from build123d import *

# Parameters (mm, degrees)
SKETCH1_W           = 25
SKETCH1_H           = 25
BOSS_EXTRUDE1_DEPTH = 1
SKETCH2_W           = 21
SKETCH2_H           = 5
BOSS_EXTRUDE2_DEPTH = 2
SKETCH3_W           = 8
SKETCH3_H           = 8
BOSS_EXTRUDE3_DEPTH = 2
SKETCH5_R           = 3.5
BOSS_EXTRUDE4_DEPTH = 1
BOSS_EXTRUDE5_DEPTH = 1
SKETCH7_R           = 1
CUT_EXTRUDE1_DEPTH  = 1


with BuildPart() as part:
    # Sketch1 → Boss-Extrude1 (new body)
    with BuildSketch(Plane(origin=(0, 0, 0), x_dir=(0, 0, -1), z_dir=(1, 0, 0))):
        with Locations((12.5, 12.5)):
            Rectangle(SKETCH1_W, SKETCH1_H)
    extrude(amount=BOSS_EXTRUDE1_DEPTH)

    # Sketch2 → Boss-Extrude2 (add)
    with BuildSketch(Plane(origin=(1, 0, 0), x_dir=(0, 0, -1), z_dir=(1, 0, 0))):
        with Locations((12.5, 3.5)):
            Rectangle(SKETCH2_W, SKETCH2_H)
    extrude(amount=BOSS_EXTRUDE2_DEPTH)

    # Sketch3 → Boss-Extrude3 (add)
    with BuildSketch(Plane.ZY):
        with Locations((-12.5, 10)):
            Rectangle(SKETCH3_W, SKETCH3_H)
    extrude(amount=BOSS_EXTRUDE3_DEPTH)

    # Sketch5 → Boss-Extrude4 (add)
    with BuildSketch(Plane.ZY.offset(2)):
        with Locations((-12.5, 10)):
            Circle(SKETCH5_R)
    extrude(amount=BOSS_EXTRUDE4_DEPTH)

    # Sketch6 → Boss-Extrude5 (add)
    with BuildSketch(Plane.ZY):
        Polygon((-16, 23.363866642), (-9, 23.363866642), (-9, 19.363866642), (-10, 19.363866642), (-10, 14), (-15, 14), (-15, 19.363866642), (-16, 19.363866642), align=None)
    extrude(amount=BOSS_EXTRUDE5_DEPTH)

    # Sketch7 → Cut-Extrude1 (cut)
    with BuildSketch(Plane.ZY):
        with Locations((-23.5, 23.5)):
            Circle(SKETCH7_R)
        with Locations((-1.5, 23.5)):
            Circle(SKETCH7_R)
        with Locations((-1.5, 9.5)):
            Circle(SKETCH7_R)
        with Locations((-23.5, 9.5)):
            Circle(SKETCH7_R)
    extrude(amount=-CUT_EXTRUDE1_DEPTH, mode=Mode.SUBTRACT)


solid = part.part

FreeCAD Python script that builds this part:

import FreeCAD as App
import Part
import Sketcher


def add_polygon(sketch, points):
    """Adds a closed chain of lines whose ends are joined by coincident constraints."""
    first, n = sketch.GeometryCount, len(points)
    for a, b in zip(points, points[1:] + points[:1]):
        sketch.addGeometry(Part.LineSegment(App.Vector(*a, 0), App.Vector(*b, 0)), False)
    for i in range(n):
        sketch.addConstraint(Sketcher.Constraint("Coincident", first + i, 2, first + (i + 1) % n, 1))

doc = App.newDocument("Part")
body = doc.addObject("PartDesign::Body", "Body")

# Sketch on YZ plane
sketch1 = doc.addObject("Sketcher::SketchObject", "Sketch")
body.addObject(sketch1)
sketch1.AttachmentSupport = (doc.YZ_Plane, [""])
sketch1.MapMode = "FlatFace"
add_polygon(sketch1, [(25, 0), (0, 0), (0, -25), (25, -25)])  # lines 0-3
sketch1.addConstraint([
    Sketcher.Constraint("Horizontal", 0),
    Sketcher.Constraint("Vertical", 1),
    Sketcher.Constraint("Horizontal", 2),
    Sketcher.Constraint("Vertical", 3),
    Sketcher.Constraint("Coincident", 0, 2, -1, 1),
    Sketcher.Constraint("Equal", 2, 1),
    Sketcher.Constraint("DistanceX", 0, 2, 0, 1, 25.0),
])
pad1 = doc.addObject("PartDesign::Pad", "Pad")
body.addObject(pad1)
pad1.Profile = sketch1
pad1.Length = 1

# Sketch on YZ plane
sketch2 = doc.addObject("Sketcher::SketchObject", "Sketch001")
body.addObject(sketch2)
sketch2.AttachmentSupport = (doc.YZ_Plane, [""])
sketch2.MapMode = "FlatFace"
sketch2.AttachmentOffset = App.Placement(App.Vector(0, 0, 1), App.Rotation())
add_polygon(sketch2, [(6, -2), (1, -2), (1, -23), (6, -23)])  # lines 0-3
sketch2.addConstraint([
    Sketcher.Constraint("Horizontal", 0),
    Sketcher.Constraint("Vertical", 1),
    Sketcher.Constraint("Horizontal", 2),
    Sketcher.Constraint("Vertical", 3),
    Sketcher.Constraint("DistanceX", 0, 2, 0, 1, 5.0),
    Sketcher.Constraint("DistanceY", 1, 2, 1, 1, 21.0),
    Sketcher.Constraint("DistanceX", -1, 1, 0, 2, 1.0),
    Sketcher.Constraint("DistanceY", 0, 2, -1, 1, 2.0),
])
pad2 = doc.addObject("PartDesign::Pad", "Pad001")
body.addObject(pad2)
pad2.Profile = sketch2
pad2.Length = 2

# Sketch on YZ plane
sketch3 = doc.addObject("Sketcher::SketchObject", "Sketch002")
body.addObject(sketch3)
sketch3.AttachmentSupport = (doc.YZ_Plane, [""])
sketch3.MapMode = "FlatFace"
add_polygon(sketch3, [(14, -16), (6, -16), (6, -8), (14, -8)])  # lines 0-3
sketch3.addConstraint([
    Sketcher.Constraint("Horizontal", 0),
    Sketcher.Constraint("Vertical", 1),
    Sketcher.Constraint("Horizontal", 2),
    Sketcher.Constraint("Vertical", 3),
    Sketcher.Constraint("Equal", 2, 1),
    Sketcher.Constraint("DistanceX", 0, 2, 0, 1, 8.0),
    Sketcher.Constraint("DistanceX", -1, 1, 0, 2, 6.0),
    Sketcher.Constraint("DistanceY", 0, 2, -1, 1, 16.5),
])
pad3 = doc.addObject("PartDesign::Pad", "Pad002")
body.addObject(pad3)
pad3.Profile = sketch3
pad3.Length = 2
pad3.Reversed = True

# Sketch on YZ plane
sketch4 = doc.addObject("Sketcher::SketchObject", "Sketch003")
body.addObject(sketch4)
sketch4.AttachmentSupport = (doc.YZ_Plane, [""])
sketch4.MapMode = "FlatFace"
sketch4.AttachmentOffset = App.Placement(App.Vector(0, 0, -2), App.Rotation())
sketch4.addGeometry(Part.Circle(App.Vector(10, -12.5, 0), App.Vector(0, 0, 1), 3.5), False)
sketch4.addConstraint([
    Sketcher.Constraint("Diameter", 0, 7.0),
    Sketcher.Constraint("DistanceX", -1, 1, 0, 3, 10.0),
    Sketcher.Constraint("DistanceY", 0, 3, -1, 1, 12.5),
])
pad4 = doc.addObject("PartDesign::Pad", "Pad003")
body.addObject(pad4)
pad4.Profile = sketch4
pad4.Length = 1
pad4.Reversed = True

# Sketch on YZ plane
sketch5 = doc.addObject("Sketcher::SketchObject", "Sketch004")
body.addObject(sketch5)
sketch5.AttachmentSupport = (doc.YZ_Plane, [""])
sketch5.MapMode = "FlatFace"
add_polygon(sketch5, [(23.4, -9), (23.4, -16), (19.4, -16), (19.4, -15), (14, -15), (14, -10), (19.4, -10), (19.4, -9)])  # lines 0-7
sketch5.addConstraint([
    Sketcher.Constraint("Vertical", 0),
    Sketcher.Constraint("Horizontal", 1),
    Sketcher.Constraint("Vertical", 2),
    Sketcher.Constraint("Horizontal", 3),
    Sketcher.Constraint("Vertical", 4),
    Sketcher.Constraint("Horizontal", 5),
    Sketcher.Constraint("Vertical", 6),
    Sketcher.Constraint("Horizontal", 7),
    Sketcher.Constraint("Vertical", 2, 2, 5, 2),
    Sketcher.Constraint("Equal", 2, 6),
    Sketcher.Constraint("DistanceX", 1, 2, 1, 1, 4.0),
    Sketcher.Constraint("DistanceY", 0, 2, 0, 1, 7.0),
    Sketcher.Constraint("DistanceY", 2, 1, 2, 2, 1.0),
    Sketcher.Constraint("DistanceY", 0, 2, -1, 1, 16.0),
    Sketcher.Constraint("DistanceX", -1, 1, 3, 2, 14.0),
    Sketcher.Constraint("DistanceX", 3, 2, 3, 1, 5.363867),
])
pad5 = doc.addObject("PartDesign::Pad", "Pad004")
body.addObject(pad5)
pad5.Profile = sketch5
pad5.Length = 1
pad5.Reversed = True

# Sketch on YZ plane
sketch6 = doc.addObject("Sketcher::SketchObject", "Sketch005")
body.addObject(sketch6)
sketch6.AttachmentSupport = (doc.YZ_Plane, [""])
sketch6.MapMode = "FlatFace"
sketch6.addGeometry([
    Part.Circle(App.Vector(23.5, -23.5, 0), App.Vector(0, 0, 1), 1),
    Part.Circle(App.Vector(23.5, -1.5, 0), App.Vector(0, 0, 1), 1),
    Part.Circle(App.Vector(9.5, -1.5, 0), App.Vector(0, 0, 1), 1),
    Part.Circle(App.Vector(9.5, -23.5, 0), App.Vector(0, 0, 1), 1),
], False)
sketch6.addConstraint([
    Sketcher.Constraint("Equal", 0, 1),
    Sketcher.Constraint("Equal", 1, 2),
    Sketcher.Constraint("Equal", 2, 3),
    Sketcher.Constraint("Horizontal", 1, 3, 2, 3),
    Sketcher.Constraint("Horizontal", 0, 3, 3, 3),
    Sketcher.Constraint("Vertical", 0, 3, 1, 3),
    Sketcher.Constraint("Vertical", 2, 3, 3, 3),
    Sketcher.Constraint("Diameter", 0, 2.0),
    Sketcher.Constraint("DistanceY", 0, 3, 1, 3, 22.0),
    Sketcher.Constraint("DistanceX", 2, 3, 1, 3, 14.0),
    Sketcher.Constraint("DistanceX", -1, 1, 0, 3, 23.5),
    Sketcher.Constraint("DistanceY", 0, 3, -1, 1, 23.5),
])
pocket1 = doc.addObject("PartDesign::Pocket", "Pocket")
body.addObject(pocket1)
pocket1.Profile = sketch6
pocket1.Length = 1
pocket1.Reversed = True

doc.recompute()
